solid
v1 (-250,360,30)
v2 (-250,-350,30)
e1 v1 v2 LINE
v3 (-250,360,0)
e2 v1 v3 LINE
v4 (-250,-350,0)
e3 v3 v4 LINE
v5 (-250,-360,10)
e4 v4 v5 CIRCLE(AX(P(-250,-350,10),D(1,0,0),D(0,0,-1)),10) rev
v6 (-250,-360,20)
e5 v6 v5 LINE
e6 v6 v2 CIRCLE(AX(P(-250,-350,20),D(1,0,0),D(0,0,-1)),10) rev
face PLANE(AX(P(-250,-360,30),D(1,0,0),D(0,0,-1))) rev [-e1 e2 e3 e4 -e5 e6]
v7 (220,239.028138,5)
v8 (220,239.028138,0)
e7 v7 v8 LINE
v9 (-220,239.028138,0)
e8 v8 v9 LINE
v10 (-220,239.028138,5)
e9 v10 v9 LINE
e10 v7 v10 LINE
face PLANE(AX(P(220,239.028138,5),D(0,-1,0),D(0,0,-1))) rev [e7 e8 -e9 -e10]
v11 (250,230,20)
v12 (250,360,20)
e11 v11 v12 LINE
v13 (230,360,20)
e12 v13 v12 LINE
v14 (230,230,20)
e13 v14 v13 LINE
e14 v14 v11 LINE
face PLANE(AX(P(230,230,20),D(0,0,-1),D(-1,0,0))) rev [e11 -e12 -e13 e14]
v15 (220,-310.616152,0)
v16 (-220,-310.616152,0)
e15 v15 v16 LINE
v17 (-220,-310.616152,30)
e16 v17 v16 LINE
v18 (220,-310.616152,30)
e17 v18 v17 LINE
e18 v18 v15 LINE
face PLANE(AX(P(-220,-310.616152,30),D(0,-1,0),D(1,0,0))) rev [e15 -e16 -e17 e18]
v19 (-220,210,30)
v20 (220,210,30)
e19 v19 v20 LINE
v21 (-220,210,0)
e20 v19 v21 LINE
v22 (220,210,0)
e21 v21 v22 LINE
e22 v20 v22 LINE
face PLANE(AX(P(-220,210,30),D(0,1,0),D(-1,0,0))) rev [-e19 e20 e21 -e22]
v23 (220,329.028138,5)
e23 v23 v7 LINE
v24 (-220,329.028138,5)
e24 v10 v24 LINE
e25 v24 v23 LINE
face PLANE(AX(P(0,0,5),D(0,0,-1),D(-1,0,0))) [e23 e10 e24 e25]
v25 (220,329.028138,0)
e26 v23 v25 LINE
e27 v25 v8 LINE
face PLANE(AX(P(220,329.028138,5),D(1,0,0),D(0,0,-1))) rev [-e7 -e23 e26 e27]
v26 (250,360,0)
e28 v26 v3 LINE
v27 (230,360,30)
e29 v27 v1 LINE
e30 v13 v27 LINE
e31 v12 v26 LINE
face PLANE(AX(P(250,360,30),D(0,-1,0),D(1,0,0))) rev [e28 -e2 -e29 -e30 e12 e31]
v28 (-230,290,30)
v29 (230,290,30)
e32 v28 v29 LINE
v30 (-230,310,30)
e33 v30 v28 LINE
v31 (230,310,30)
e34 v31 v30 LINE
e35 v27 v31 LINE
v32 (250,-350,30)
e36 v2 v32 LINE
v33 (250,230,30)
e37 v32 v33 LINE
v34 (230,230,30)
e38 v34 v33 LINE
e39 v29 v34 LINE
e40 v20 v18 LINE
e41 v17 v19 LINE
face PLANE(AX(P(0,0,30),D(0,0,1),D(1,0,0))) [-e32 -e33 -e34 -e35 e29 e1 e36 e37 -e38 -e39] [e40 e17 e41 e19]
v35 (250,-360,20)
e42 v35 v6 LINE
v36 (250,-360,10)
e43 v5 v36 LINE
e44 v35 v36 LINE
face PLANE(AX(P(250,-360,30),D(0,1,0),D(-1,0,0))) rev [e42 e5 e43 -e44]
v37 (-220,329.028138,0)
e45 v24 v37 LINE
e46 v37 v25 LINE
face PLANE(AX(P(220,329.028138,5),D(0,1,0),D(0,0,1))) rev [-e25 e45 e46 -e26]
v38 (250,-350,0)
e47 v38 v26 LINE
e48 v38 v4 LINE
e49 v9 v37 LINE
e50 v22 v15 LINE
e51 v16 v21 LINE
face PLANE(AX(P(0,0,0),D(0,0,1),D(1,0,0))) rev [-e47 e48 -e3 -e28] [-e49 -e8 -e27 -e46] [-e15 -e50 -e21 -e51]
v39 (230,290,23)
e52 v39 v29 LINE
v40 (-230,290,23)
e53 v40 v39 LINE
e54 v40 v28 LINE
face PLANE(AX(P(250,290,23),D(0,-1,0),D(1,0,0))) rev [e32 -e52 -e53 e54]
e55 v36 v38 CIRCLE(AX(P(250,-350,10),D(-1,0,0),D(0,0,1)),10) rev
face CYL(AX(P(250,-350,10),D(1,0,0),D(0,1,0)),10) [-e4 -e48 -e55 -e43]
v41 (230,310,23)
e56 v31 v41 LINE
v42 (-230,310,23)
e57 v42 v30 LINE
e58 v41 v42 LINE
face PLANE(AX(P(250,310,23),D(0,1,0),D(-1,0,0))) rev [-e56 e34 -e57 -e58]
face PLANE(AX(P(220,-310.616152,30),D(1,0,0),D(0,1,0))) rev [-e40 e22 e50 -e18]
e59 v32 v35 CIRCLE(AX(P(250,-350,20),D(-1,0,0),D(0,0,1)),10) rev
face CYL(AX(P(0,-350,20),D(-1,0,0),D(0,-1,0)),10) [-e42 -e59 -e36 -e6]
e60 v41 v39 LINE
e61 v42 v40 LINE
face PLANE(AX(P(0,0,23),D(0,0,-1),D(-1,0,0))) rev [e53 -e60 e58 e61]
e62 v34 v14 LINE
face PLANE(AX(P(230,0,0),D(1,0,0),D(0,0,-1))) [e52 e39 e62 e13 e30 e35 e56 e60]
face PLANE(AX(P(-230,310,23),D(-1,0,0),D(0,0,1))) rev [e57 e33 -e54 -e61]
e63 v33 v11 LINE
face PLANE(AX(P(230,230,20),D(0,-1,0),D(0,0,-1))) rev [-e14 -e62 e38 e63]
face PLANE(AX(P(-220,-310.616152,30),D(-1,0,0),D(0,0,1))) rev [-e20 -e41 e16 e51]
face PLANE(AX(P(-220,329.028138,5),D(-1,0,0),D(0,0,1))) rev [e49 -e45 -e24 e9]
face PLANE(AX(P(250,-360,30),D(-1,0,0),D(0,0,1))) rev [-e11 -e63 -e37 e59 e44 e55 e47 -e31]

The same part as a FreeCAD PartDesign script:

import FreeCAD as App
import Part
import Sketcher
from FreeCAD import Vector


def edges_at(feature, points):
    """Names of the edges that pass closest to the given points."""
    edges = feature.Shape.Edges
    near = lambda p: min(range(len(edges)), key=lambda i: edges[i].distToShape(Part.Vertex(*p))[0])
    return sorted({f"Edge{near(p) + 1}" for p in points})


def add_polygon(sketch, points):
    """Adds a closed chain of lines whose ends are joined by coincident constraints."""
    first, n = sketch.GeometryCount, len(points)
    for a, b in zip(points, points[1:] + points[:1]):
        sketch.addGeometry(Part.LineSegment(App.Vector(*a, 0), App.Vector(*b, 0)), False)
    for i in range(n):
        sketch.addConstraint(Sketcher.Constraint("Coincident", first + i, 2, first + (i + 1) % n, 1))

doc = App.newDocument("Part")
body = doc.addObject("PartDesign::Body", "Body")

# Sketch on XY plane
sketch1 = body.newObject("Sketcher::SketchObject", "Sketch")
sketch1.AttachmentSupport = (doc.getObject("XY_Plane"), [""])
sketch1.MapMode = "FlatFace"
add_polygon(sketch1, [(-250, 360), (-250, -360), (250, -360), (250, 360)])  # lines 0-3
sketch1.addConstraint(Sketcher.Constraint("Vertical", 0))
sketch1.addConstraint(Sketcher.Constraint("Horizontal", 1))
sketch1.addConstraint(Sketcher.Constraint("Vertical", 2))
sketch1.addConstraint(Sketcher.Constraint("Horizontal", 3))
sketch1.addConstraint(Sketcher.Constraint("Symmetric", 0, 2, 2, 2, -1, 1))
sketch1.addConstraint(Sketcher.Constraint("DistanceX", 1, 1, 1, 2, 500.0))
sketch1.addConstraint(Sketcher.Constraint("DistanceY", 0, 2, 0, 1, 720.0))
pad1 = body.newObject("PartDesign::Pad", "Pad")
pad1.Profile = sketch1
pad1.Length = 30

# Sketch on XY plane
sketch2 = body.newObject("Sketcher::SketchObject", "Sketch001")
sketch2.AttachmentSupport = (doc.getObject("XY_Plane"), [""])
sketch2.MapMode = "FlatFace"
add_polygon(sketch2, [(220, 210), (220, -310.616152), (-220, -310.616152), (-220, 210)])  # lines 0-3
sketch2.addConstraint(Sketcher.Constraint("Vertical", 0))
sketch2.addConstraint(Sketcher.Constraint("Horizontal", 1))
sketch2.addConstraint(Sketcher.Constraint("Vertical", 2))
sketch2.addConstraint(Sketcher.Constraint("Horizontal", 3))
sketch2.addConstraint(Sketcher.Constraint("DistanceX", 1, 2, 1, 1, 440.0))
sketch2.addConstraint(Sketcher.Constraint("DistanceX", -1, 1, 0, 2, 220.0))
sketch2.addConstraint(Sketcher.Constraint("DistanceY", -1, 1, 2, 2, 210.0))
sketch2.addConstraint(Sketcher.Constraint("DistanceY", 0, 2, 0, 1, 520.616152))
pocket1 = body.newObject("PartDesign::Pocket", "Pocket")
pocket1.Profile = sketch2
pocket1.Type = "ThroughAll"
pocket1.Reversed = True
doc.recompute()

fillet = body.newObject("PartDesign::Fillet", "Fillet")
fillet.Base = (pocket1, edges_at(pocket1, [(0, -360, 0)]))
fillet.Radius = 10
doc.recompute()

fillet2 = body.newObject("PartDesign::Fillet", "Fillet001")
fillet2.Base = (fillet, edges_at(fillet, [(0, -360, 30)]))
fillet2.Radius = 10

# Sketch on XY plane
sketch3 = body.newObject("Sketcher::SketchObject", "Sketch002")
sketch3.AttachmentSupport = (doc.getObject("XY_Plane"), [""])
sketch3.MapMode = "FlatFace"
add_polygon(sketch3, [(220, 329.028138), (220, 239.028138), (-220, 239.028138), (-220, 329.028138)])  # lines 0-3
sketch3.addConstraint(Sketcher.Constraint("Vertical", 0))
sketch3.addConstraint(Sketcher.Constraint("Horizontal", 1))
sketch3.addConstraint(Sketcher.Constraint("Vertical", 2))
sketch3.addConstraint(Sketcher.Constraint("Horizontal", 3))
sketch3.addConstraint(Sketcher.Constraint("DistanceX", 1, 2, 1, 1, 440.0))
sketch3.addConstraint(Sketcher.Constraint("DistanceY", 0, 2, 0, 1, 90.0))
sketch3.addConstraint(Sketcher.Constraint("DistanceX", -1, 1, 0, 2, 220.0))
sketch3.addConstraint(Sketcher.Constraint("DistanceY", -1, 1, 0, 2, 239.028138))
pocket2 = body.newObject("PartDesign::Pocket", "Pocket001")
pocket2.Profile = sketch3
pocket2.Length = 5
pocket2.Reversed = True

# Sketch on XY plane
sketch4 = body.newObject("Sketcher::SketchObject", "Sketch003")
sketch4.AttachmentSupport = (doc.getObject("XY_Plane"), [""])
sketch4.MapMode = "FlatFace"
sketch4.AttachmentOffset = App.Placement(Vector(0, 0, 30), App.Rotation())
add_polygon(sketch4, [(-230, 310), (-230, 290), (250, 290), (250, 310)])  # lines 0-3
sketch4.addConstraint(Sketcher.Constraint("Vertical", 0))
sketch4.addConstraint(Sketcher.Constraint("Horizontal", 1))
sketch4.addConstraint(Sketcher.Constraint("Vertical", 2))
sketch4.addConstraint(Sketcher.Constraint("Horizontal", 3))
sketch4.addConstraint(Sketcher.Constraint("DistanceX", 1, 1, 1, 2, 480.0))
sketch4.addConstraint(Sketcher.Constraint("DistanceY", 0, 2, 0, 1, 20.0))
sketch4.addConstraint(Sketcher.Constraint("DistanceX", 0, 2, -1, 1, 230.0))
sketch4.addConstraint(Sketcher.Constraint("DistanceY", -1, 1, 0, 2, 290.0))
pocket3 = body.newObject("PartDesign::Pocket", "Pocket002")
pocket3.Profile = sketch4
pocket3.Length = 7

# Sketch on YZ plane
sketch5 = body.newObject("Sketcher::SketchObject", "Sketch004")
sketch5.AttachmentSupport = (doc.getObject("YZ_Plane"), [""])
sketch5.MapMode = "FlatFace"
sketch5.AttachmentOffset = App.Placement(Vector(0, 0, 250), App.Rotation())
add_polygon(sketch5, [(360, 30), (230, 30), (230, 20), (360, 20)])  # lines 0-3
sketch5.addConstraint(Sketcher.Constraint("Horizontal", 0))
sketch5.addConstraint(Sketcher.Constraint("Vertical", 1))
sketch5.addConstraint(Sketcher.Constraint("Horizontal", 2))
sketch5.addConstraint(Sketcher.Constraint("Vertical", 3))
sketch5.addConstraint(Sketcher.Constraint("DistanceX", 0, 2, 0, 1, 130.0))
sketch5.addConstraint(Sketcher.Constraint("DistanceY", 1, 2, 1, 1, 10.0))
sketch5.addConstraint(Sketcher.Constraint("DistanceX", -1, 1, 0, 2, 230.0))
sketch5.addConstraint(Sketcher.Constraint("DistanceY", -1, 1, 0, 2, 30.0))
pocket4 = body.newObject("PartDesign::Pocket", "Pocket003")
pocket4.Profile = sketch5
pocket4.Length = 20

doc.recompute()
